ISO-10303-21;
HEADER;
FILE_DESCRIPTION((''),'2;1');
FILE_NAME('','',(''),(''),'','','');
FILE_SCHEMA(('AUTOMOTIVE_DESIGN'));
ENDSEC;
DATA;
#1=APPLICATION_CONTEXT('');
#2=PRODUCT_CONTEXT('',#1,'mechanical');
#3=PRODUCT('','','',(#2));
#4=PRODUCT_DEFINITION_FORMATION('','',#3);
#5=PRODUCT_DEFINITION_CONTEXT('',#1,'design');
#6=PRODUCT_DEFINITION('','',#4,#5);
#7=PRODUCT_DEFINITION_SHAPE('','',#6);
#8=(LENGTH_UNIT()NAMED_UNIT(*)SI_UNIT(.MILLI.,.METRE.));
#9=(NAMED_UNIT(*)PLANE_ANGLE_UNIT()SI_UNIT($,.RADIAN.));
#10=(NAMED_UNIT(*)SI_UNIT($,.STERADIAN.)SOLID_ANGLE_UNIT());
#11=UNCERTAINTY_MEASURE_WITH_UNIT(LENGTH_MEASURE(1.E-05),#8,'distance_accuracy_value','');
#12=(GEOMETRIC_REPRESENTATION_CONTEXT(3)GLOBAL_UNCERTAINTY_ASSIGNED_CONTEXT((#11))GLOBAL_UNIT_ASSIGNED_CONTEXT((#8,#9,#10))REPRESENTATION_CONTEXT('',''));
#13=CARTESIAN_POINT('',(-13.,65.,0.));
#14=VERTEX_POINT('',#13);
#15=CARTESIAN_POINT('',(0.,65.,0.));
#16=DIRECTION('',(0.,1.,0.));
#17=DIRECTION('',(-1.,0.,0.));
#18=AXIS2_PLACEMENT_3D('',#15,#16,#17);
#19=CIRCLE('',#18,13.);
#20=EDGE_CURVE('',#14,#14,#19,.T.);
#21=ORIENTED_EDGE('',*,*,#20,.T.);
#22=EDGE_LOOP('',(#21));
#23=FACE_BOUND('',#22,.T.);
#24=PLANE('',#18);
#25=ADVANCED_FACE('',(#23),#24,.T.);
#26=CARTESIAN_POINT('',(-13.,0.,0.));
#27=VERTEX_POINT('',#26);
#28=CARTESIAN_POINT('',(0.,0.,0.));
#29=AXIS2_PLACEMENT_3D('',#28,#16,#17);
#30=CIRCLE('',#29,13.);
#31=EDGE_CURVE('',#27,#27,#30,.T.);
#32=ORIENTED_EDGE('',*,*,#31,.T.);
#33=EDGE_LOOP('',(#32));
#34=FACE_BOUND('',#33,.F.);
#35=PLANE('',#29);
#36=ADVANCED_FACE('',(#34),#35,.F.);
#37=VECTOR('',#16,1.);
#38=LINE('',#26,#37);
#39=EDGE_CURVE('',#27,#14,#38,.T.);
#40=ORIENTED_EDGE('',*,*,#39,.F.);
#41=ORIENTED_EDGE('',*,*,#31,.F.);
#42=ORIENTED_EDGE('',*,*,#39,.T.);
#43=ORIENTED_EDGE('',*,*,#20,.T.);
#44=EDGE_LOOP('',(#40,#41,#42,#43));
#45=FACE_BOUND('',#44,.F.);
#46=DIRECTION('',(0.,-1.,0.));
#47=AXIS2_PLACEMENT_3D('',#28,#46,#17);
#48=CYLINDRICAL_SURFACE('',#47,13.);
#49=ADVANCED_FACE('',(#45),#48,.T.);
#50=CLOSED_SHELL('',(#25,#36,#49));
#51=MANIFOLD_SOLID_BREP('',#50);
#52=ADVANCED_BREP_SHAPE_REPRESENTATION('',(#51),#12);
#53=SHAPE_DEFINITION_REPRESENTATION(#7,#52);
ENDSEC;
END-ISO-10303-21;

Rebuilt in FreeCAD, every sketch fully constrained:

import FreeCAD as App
import Part
import Sketcher
from FreeCAD import Vector
Q = App.Units.Quantity

doc = App.newDocument("Part")
body = doc.addObject("PartDesign::Body", "Body")

# Sketch on XZ plane
sketch1 = body.newObject("Sketcher::SketchObject", "Sketch")
sketch1.AttachmentSupport = (doc.getObject("XZ_Plane"), [""])
sketch1.MapMode = "FlatFace"
sketch1.addGeometry(Part.Circle(Vector(0, 0, 0), Vector(0, 0, 1), 13), False)
sketch1.addConstraint(Sketcher.Constraint("Coincident", 0, 3, -1, 1))
sketch1.addConstraint(Sketcher.Constraint("Diameter", 0, Q("26 mm")))
pad1 = body.newObject("PartDesign::Pad", "Pad")
pad1.Profile = sketch1
pad1.Length = 65
pad1.Reversed = True

doc.recompute()
